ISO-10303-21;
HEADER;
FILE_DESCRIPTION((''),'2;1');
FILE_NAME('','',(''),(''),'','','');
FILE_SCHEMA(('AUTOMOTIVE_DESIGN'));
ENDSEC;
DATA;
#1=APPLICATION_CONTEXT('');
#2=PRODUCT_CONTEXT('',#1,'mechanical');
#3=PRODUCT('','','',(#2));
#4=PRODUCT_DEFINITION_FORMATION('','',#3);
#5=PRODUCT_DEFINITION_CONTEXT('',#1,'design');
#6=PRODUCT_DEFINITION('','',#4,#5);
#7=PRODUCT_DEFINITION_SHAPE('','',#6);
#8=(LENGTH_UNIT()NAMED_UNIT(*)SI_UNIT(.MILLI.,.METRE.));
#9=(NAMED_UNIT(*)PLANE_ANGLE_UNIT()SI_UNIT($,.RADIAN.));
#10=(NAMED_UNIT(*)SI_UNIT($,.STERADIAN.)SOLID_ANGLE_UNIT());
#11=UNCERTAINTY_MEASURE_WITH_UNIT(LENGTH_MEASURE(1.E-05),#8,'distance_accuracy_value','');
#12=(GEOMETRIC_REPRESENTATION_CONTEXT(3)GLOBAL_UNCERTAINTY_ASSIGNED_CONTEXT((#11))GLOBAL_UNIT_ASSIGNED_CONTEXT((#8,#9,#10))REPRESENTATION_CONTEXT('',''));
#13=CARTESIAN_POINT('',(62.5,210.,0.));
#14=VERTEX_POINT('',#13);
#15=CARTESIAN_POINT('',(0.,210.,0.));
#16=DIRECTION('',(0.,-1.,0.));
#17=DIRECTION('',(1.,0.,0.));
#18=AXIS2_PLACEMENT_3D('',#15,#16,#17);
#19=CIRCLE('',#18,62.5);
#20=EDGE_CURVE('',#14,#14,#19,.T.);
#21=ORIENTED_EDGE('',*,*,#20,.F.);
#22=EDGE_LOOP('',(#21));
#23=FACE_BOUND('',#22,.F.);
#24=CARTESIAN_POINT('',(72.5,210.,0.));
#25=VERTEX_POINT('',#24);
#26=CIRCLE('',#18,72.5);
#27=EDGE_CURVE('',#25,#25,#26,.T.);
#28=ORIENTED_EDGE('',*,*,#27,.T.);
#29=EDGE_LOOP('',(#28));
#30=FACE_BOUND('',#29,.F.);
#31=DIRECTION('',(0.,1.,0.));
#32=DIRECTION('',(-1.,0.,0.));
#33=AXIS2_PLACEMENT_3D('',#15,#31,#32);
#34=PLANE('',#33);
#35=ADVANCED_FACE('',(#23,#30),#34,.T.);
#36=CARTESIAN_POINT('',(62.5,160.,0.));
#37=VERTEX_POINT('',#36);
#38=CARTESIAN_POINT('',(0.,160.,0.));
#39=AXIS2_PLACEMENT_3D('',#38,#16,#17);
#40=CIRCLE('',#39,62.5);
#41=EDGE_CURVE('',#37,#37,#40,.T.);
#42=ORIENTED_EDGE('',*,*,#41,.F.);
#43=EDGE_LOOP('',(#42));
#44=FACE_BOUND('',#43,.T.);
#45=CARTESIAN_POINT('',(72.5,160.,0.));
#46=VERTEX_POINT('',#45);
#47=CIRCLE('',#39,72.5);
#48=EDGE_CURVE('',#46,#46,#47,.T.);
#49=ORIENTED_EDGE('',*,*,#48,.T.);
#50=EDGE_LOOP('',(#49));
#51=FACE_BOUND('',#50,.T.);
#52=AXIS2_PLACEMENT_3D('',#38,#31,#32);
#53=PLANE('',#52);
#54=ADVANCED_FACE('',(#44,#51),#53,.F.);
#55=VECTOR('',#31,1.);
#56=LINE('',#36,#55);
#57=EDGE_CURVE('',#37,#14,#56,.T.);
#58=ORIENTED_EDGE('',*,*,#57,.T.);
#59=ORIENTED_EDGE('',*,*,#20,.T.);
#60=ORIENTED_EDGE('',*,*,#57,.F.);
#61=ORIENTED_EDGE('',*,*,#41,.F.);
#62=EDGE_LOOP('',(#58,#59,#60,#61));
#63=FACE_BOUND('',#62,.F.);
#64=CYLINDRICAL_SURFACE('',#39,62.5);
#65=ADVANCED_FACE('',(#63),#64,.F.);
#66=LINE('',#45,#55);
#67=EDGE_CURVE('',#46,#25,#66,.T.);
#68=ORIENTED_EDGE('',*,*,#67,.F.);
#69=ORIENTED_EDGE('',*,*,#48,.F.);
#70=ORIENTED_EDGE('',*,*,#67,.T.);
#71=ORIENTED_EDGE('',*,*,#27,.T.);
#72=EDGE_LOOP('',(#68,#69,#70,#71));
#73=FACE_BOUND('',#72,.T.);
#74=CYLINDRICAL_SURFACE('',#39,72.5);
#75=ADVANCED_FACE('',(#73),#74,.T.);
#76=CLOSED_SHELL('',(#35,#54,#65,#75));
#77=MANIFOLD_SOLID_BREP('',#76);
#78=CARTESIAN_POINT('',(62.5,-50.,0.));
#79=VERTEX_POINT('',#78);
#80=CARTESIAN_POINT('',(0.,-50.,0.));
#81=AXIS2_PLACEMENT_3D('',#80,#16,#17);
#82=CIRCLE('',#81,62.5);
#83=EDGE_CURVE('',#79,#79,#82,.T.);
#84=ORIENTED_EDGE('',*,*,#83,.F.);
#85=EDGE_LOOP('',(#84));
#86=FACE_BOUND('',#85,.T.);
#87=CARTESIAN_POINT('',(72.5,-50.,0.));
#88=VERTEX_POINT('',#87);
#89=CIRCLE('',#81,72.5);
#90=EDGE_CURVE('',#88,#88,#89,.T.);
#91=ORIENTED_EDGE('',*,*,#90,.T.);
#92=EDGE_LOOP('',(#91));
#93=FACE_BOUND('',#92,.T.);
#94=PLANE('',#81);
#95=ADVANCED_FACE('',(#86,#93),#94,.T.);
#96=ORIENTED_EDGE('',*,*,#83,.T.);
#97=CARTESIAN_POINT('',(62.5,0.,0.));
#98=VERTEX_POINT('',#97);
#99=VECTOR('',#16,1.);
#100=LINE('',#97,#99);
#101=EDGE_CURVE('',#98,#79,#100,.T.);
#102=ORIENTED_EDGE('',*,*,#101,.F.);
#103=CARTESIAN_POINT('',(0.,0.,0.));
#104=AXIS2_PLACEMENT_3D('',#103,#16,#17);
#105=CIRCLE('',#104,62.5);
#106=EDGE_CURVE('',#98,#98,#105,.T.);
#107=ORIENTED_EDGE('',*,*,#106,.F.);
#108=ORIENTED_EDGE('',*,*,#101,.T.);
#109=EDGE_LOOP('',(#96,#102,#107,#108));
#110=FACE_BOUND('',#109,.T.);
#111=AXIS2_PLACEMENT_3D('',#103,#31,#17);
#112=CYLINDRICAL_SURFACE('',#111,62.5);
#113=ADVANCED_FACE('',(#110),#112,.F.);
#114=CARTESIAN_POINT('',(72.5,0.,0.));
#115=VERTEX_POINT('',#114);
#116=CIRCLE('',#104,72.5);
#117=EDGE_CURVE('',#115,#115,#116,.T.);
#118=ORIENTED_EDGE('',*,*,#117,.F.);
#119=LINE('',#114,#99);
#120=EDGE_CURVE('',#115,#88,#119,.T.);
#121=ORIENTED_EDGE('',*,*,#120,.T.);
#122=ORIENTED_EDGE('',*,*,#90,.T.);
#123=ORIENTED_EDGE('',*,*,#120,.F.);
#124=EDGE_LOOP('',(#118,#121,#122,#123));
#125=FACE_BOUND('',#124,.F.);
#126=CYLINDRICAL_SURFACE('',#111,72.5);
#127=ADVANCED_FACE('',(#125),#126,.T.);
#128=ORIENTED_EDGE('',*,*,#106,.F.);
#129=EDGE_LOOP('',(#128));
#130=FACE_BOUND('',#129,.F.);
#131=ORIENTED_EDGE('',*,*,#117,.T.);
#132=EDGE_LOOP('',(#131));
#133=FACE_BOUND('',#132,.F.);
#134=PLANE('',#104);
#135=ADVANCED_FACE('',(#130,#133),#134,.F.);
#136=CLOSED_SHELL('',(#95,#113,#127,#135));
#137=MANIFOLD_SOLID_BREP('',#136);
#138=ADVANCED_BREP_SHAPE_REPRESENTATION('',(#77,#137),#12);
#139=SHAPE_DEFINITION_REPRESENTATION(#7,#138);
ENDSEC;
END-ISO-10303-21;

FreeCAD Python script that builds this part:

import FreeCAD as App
import Part
import Sketcher
from FreeCAD import Vector

doc = App.newDocument("Part")
body = doc.addObject("PartDesign::Body", "Body")

# Sketch on XZ plane
sketch1 = doc.addObject("Sketcher::SketchObject", "Sketch")
body.addObject(sketch1)
sketch1.AttachmentSupport = (doc.XZ_Plane, [""])
sketch1.MapMode = "FlatFace"
sketch1.addGeometry(Part.Circle(Vector(0, 0, 0), Vector(0, 0, 1), 72.5), False)
sketch1.addGeometry(Part.Circle(Vector(0, 0, 0), Vector(0, 0, 1), 62.5), False)
sketch1.addConstraint(Sketcher.Constraint("Coincident", 0, 3, -1, 1))
sketch1.addConstraint(Sketcher.Constraint("Coincident", 1, 3, -1, 1))
sketch1.addConstraint(Sketcher.Constraint("Diameter", 0, 145.0))
sketch1.addConstraint(Sketcher.Constraint("Diameter", 1, 125.0))
pad1 = doc.addObject("PartDesign::Pad", "Pad")
body.addObject(pad1)
pad1.Profile = sketch1
pad1.Length = 50
body2 = doc.addObject("PartDesign::Body", "Body001")
doc.recompute()

mirroring = doc.addObject("Part::Mirroring", "Mirroring")
mirroring.Source = body
mirroring.Base = Vector(0, 80, 0)
mirroring.Normal = Vector(0, -1, 0)
body2.BaseFeature = mirroring
doc.recompute()
mirroring.Visibility = False

doc.recompute()
